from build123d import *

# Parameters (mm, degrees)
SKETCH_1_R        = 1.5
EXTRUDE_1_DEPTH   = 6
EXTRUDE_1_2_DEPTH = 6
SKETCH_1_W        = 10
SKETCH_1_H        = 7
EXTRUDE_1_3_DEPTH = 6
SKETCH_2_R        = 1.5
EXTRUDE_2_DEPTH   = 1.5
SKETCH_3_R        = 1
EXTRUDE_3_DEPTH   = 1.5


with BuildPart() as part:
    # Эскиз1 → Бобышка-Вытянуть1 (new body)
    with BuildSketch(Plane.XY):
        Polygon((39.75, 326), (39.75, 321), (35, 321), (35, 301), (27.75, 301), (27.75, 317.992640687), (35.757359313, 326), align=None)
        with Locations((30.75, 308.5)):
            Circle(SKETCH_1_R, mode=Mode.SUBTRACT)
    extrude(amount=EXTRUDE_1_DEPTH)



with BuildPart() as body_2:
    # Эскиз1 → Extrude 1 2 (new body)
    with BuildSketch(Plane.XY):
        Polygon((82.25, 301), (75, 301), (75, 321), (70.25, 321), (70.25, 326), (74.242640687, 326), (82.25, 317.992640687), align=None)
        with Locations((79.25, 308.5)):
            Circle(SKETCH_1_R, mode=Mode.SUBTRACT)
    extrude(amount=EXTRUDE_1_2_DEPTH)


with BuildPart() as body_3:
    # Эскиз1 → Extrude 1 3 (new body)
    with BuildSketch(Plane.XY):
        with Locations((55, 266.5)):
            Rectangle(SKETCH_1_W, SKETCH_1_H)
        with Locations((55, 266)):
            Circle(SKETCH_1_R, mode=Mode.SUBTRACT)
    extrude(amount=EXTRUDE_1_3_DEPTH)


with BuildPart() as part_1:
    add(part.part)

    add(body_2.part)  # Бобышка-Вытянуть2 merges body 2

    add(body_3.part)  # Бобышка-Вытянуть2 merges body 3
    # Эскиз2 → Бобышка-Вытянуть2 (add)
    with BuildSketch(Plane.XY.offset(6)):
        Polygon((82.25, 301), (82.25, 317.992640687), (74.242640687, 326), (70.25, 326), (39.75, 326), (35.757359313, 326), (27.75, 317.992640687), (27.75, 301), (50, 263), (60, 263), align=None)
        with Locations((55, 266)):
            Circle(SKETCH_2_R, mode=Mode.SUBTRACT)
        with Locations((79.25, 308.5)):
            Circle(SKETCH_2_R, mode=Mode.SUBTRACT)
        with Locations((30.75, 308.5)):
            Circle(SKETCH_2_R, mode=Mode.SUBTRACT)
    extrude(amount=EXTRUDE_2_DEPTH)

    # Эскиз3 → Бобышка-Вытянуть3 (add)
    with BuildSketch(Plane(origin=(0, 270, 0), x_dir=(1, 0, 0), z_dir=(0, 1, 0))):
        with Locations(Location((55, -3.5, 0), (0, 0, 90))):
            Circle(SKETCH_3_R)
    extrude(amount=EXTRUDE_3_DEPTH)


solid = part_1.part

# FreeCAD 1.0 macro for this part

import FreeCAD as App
import Part
import Sketcher

V = App.Vector
Q = App.Units.Quantity

doc = App.newDocument("Part")
body = doc.addObject("PartDesign::Body", "Body")

# Sketch on XY plane
sketch1 = body.newObject("Sketcher::SketchObject", "Sketch")
sketch1.AttachmentSupport = (doc.getObject("XY_Plane"), [""])
sketch1.MapMode = "FlatFace"
sketch1.addGeometry(Part.LineSegment(V(39.8, 321, 0), V(39.8, 326, 0)), False)
sketch1.addGeometry(Part.LineSegment(V(39.8, 326, 0), V(35.8, 326, 0)), False)
sketch1.addGeometry(Part.LineSegment(V(35.8, 326, 0), V(27.8, 318, 0)), False)
sketch1.addGeometry(Part.LineSegment(V(27.8, 318, 0), V(27.8, 301, 0)), False)
sketch1.addGeometry(Part.LineSegment(V(27.8, 301, 0), V(35, 301, 0)), False)
sketch1.addGeometry(Part.LineSegment(V(35, 301, 0), V(35, 321, 0)), False)
sketch1.addGeometry(Part.LineSegment(V(35, 321, 0), V(39.8, 321, 0)), False)
sketch1.addGeometry(Part.Circle(V(30.8, 308.5, 0), V(0, 0, 1), 1.5), False)
sketch1.addConstraint(Sketcher.Constraint("Coincident", 0, 2, 1, 1))
sketch1.addConstraint(Sketcher.Constraint("Coincident", 1, 2, 2, 1))
sketch1.addConstraint(Sketcher.Constraint("Coincident", 2, 2, 3, 1))
sketch1.addConstraint(Sketcher.Constraint("Coincident", 3, 2, 4, 1))
sketch1.addConstraint(Sketcher.Constraint("Coincident", 4, 2, 5, 1))
sketch1.addConstraint(Sketcher.Constraint("Coincident", 5, 2, 6, 1))
sketch1.addConstraint(Sketcher.Constraint("Coincident", 6, 2, 0, 1))
sketch1.addConstraint(Sketcher.Constraint("Vertical", 0))
sketch1.addConstraint(Sketcher.Constraint("Horizontal", 1))
sketch1.addConstraint(Sketcher.Constraint("Vertical", 3))
sketch1.addConstraint(Sketcher.Constraint("Horizontal", 4))
sketch1.addConstraint(Sketcher.Constraint("Vertical", 5))
sketch1.addConstraint(Sketcher.Constraint("Horizontal", 6))
sketch1.addConstraint(Sketcher.Constraint("Diameter", 7, 3.0))
sketch1.addConstraint(Sketcher.Constraint("DistanceY", 0, 1, 0, 2, 5.0))
sketch1.addConstraint(Sketcher.Constraint("DistanceY", 5, 1, 5, 2, 20.0))
sketch1.addConstraint(Sketcher.Constraint("Angle", 2, Q("-135 deg")))
sketch1.addConstraint(Sketcher.Constraint("DistanceY", -1, 1, 0, 2, 326.0))
sketch1.addConstraint(Sketcher.Constraint("DistanceX", -1, 1, 4, 2, 35.0))
sketch1.addConstraint(Sketcher.Constraint("DistanceX", 7, 3, 0, 2, 9.0))
sketch1.addConstraint(Sketcher.Constraint("DistanceX", 2, 2, 7, 3, 3.0))
sketch1.addConstraint(Sketcher.Constraint("DistanceX", 4, 1, 4, 2, 7.25))
sketch1.addConstraint(Sketcher.Constraint("DistanceY", -1, 1, 7, 3, 308.5))
sketch1.addConstraint(Sketcher.Constraint("DistanceX", 1, 2, 1, 1, 3.992641))
pad1 = body.newObject("PartDesign::Pad", "Pad")
pad1.Profile = sketch1
pad1.Length = 6
body2 = doc.addObject("PartDesign::Body", "Body001")

# Sketch on XY plane
sketch2 = body2.newObject("Sketcher::SketchObject", "Sketch001")
sketch2.AttachmentSupport = (doc.getObject("XY_Plane001"), [""])
sketch2.MapMode = "FlatFace"
sketch2.addGeometry(Part.LineSegment(V(75, 301, 0), V(82.2, 301, 0)), False)
sketch2.addGeometry(Part.LineSegment(V(82.2, 301, 0), V(82.2, 318, 0)), False)
sketch2.addGeometry(Part.LineSegment(V(82.2, 318, 0), V(74.2, 326, 0)), False)
sketch2.addGeometry(Part.LineSegment(V(74.2, 326, 0), V(70.2, 326, 0)), False)
sketch2.addGeometry(Part.LineSegment(V(70.2, 326, 0), V(70.2, 321, 0)), False)
sketch2.addGeometry(Part.LineSegment(V(70.2, 321, 0), V(75, 321, 0)), False)
sketch2.addGeometry(Part.LineSegment(V(75, 321, 0), V(75, 301, 0)), False)
sketch2.addGeometry(Part.Circle(V(79.2, 308.5, 0), V(0, 0, 1), 1.5), False)
sketch2.addConstraint(Sketcher.Constraint("Coincident", 0, 2, 1, 1))
sketch2.addConstraint(Sketcher.Constraint("Coincident", 1, 2, 2, 1))
sketch2.addConstraint(Sketcher.Constraint("Coincident", 2, 2, 3, 1))
sketch2.addConstraint(Sketcher.Constraint("Coincident", 3, 2, 4, 1))
sketch2.addConstraint(Sketcher.Constraint("Coincident", 4, 2, 5, 1))
sketch2.addConstraint(Sketcher.Constraint("Coincident", 5, 2, 6, 1))
sketch2.addConstraint(Sketcher.Constraint("Coincident", 6, 2, 0, 1))
sketch2.addConstraint(Sketcher.Constraint("Horizontal", 0))
sketch2.addConstraint(Sketcher.Constraint("Vertical", 1))
sketch2.addConstraint(Sketcher.Constraint("Horizontal", 3))
sketch2.addConstraint(Sketcher.Constraint("Vertical", 4))
sketch2.addConstraint(Sketcher.Constraint("Horizontal", 5))
sketch2.addConstraint(Sketcher.Constraint("Vertical", 6))
sketch2.addConstraint(Sketcher.Constraint("Diameter", 7, 3.0))
sketch2.addConstraint(Sketcher.Constraint("DistanceY", 4, 2, 4, 1, 5.0))
sketch2.addConstraint(Sketcher.Constraint("DistanceY", 6, 2, 6, 1, 20.0))
sketch2.addConstraint(Sketcher.Constraint("Angle", 2, Q("135 deg")))
sketch2.addConstraint(Sketcher.Constraint("DistanceY", -1, 1, 0, 2, 301.0))
sketch2.addConstraint(Sketcher.Constraint("DistanceX", -1, 1, 5, 2, 75.0))
sketch2.addConstraint(Sketcher.Constraint("DistanceX", 7, 3, 0, 2, 3.0))
sketch2.addConstraint(Sketcher.Constraint("DistanceX", 3, 2, 1, 2, 12.0))
sketch2.addConstraint(Sketcher.Constraint("DistanceX", 0, 1, 0, 2, 7.25))
sketch2.addConstraint(Sketcher.Constraint("DistanceY", -1, 1, 7, 3, 308.5))
sketch2.addConstraint(Sketcher.Constraint("DistanceX", 3, 2, 3, 1, 3.992641))
pad2 = body2.newObject("PartDesign::Pad", "Pad001")
pad2.Profile = sketch2
pad2.Length = 6
body3 = doc.addObject("PartDesign::Body", "Body002")

# Sketch on XY plane
sketch3 = body3.newObject("Sketcher::SketchObject", "Sketch002")
sketch3.AttachmentSupport = (doc.getObject("XY_Plane002"), [""])
sketch3.MapMode = "FlatFace"
sketch3.addGeometry(Part.LineSegment(V(50, 270, 0), V(50, 263, 0)), False)
sketch3.addGeometry(Part.LineSegment(V(50, 263, 0), V(60, 263, 0)), False)
sketch3.addGeometry(Part.LineSegment(V(60, 263, 0), V(60, 270, 0)), False)
sketch3.addGeometry(Part.LineSegment(V(60, 270, 0), V(50, 270, 0)), False)
sketch3.addGeometry(Part.Circle(V(55, 266, 0), V(0, 0, 1), 1.5), False)
sketch3.addConstraint(Sketcher.Constraint("Coincident", 0, 2, 1, 1))
sketch3.addConstraint(Sketcher.Constraint("Coincident", 1, 2, 2, 1))
sketch3.addConstraint(Sketcher.Constraint("Coincident", 2, 2, 3, 1))
sketch3.addConstraint(Sketcher.Constraint("Coincident", 3, 2, 0, 1))
sketch3.addConstraint(Sketcher.Constraint("Vertical", 0))
sketch3.addConstraint(Sketcher.Constraint("Horizontal", 1))
sketch3.addConstraint(Sketcher.Constraint("Vertical", 2))
sketch3.addConstraint(Sketcher.Constraint("Horizontal", 3))
sketch3.addConstraint(Sketcher.Constraint("Diameter", 4, 3.0))
sketch3.addConstraint(Sketcher.Constraint("DistanceX", 1, 1, 1, 2, 10.0))
sketch3.addConstraint(Sketcher.Constraint("DistanceY", 0, 2, 0, 1, 7.0))
sketch3.addConstraint(Sketcher.Constraint("DistanceX", -1, 1, 4, 3, 55.0))
sketch3.addConstraint(Sketcher.Constraint("DistanceY", -1, 1, 4, 3, 266.0))
sketch3.addConstraint(Sketcher.Constraint("DistanceX", -1, 1, 0, 2, 50.0))
sketch3.addConstraint(Sketcher.Constraint("DistanceY", -1, 1, 0, 2, 263.0))
pad3 = body3.newObject("PartDesign::Pad", "Pad002")
pad3.Profile = sketch3
pad3.Length = 6
body.AllowCompound = True
doc.recompute()

boolean = body.newObject("PartDesign::Boolean", "Boolean")
boolean.Type = "Fuse"
boolean.addObjects([body2])
doc.recompute()

boolean2 = body.newObject("PartDesign::Boolean", "Boolean001")
boolean2.Type = "Fuse"
boolean2.addObjects([body3])

# Sketch on XY plane
sketch4 = body.newObject("Sketcher::SketchObject", "Sketch003")
sketch4.AttachmentSupport = (doc.getObject("XY_Plane"), [""])
sketch4.MapMode = "FlatFace"
sketch4.AttachmentOffset = App.Placement(V(0, 0, 6), App.Rotation())
sketch4.addGeometry(Part.LineSegment(V(82.2, 301, 0), V(82.2, 318, 0)), False)
sketch4.addGeometry(Part.LineSegment(V(82.2, 318, 0), V(74.2, 326, 0)), False)
sketch4.addGeometry(Part.LineSegment(V(74.2, 326, 0), V(35.8, 326, 0)), False)
sketch4.addGeometry(Part.LineSegment(V(35.8, 326, 0), V(27.8, 318, 0)), False)
sketch4.addGeometry(Part.LineSegment(V(27.8, 318, 0), V(27.8, 301, 0)), False)
sketch4.addGeometry(Part.LineSegment(V(27.8, 301, 0), V(50, 263, 0)), False)
sketch4.addGeometry(Part.LineSegment(V(50, 263, 0), V(60, 263, 0)), False)
sketch4.addGeometry(Part.LineSegment(V(60, 263, 0), V(82.2, 301, 0)), False)
sketch4.addGeometry(Part.Circle(V(55, 266, 0), V(0, 0, 1), 1.5), False)
sketch4.addGeometry(Part.Circle(V(30.8, 308.5, 0), V(0, 0, 1), 1.5), False)
sketch4.addGeometry(Part.Circle(V(79.2, 308.5, 0), V(0, 0, 1), 1.5), False)
sketch4.addConstraint(Sketcher.Constraint("Coincident", 0, 2, 1, 1))
sketch4.addConstraint(Sketcher.Constraint("Coincident", 1, 2, 2, 1))
sketch4.addConstraint(Sketcher.Constraint("Coincident", 2, 2, 3, 1))
sketch4.addConstraint(Sketcher.Constraint("Coincident", 3, 2, 4, 1))
sketch4.addConstraint(Sketcher.Constraint("Coincident", 4, 2, 5, 1))
sketch4.addConstraint(Sketcher.Constraint("Coincident", 5, 2, 6, 1))
sketch4.addConstraint(Sketcher.Constraint("Coincident", 6, 2, 7, 1))
sketch4.addConstraint(Sketcher.Constraint("Coincident", 7, 2, 0, 1))
sketch4.addConstraint(Sketcher.Constraint("Vertical", 0))
sketch4.addConstraint(Sketcher.Constraint("Horizontal", 2))
sketch4.addConstraint(Sketcher.Constraint("Vertical", 4))
sketch4.addConstraint(Sketcher.Constraint("Horizontal", 6))
sketch4.addConstraint(Sketcher.Constraint("Equal", 8, 9))
sketch4.addConstraint(Sketcher.Constraint("Equal", 9, 10))
sketch4.addConstraint(Sketcher.Constraint("Perpendicular", 1, 3))
sketch4.addConstraint(Sketcher.Constraint("Horizontal", 9, 3, 10, 3))
sketch4.addConstraint(Sketcher.Constraint("Horizontal", 0, 2, 3, 2))
sketch4.addConstraint(Sketcher.Constraint("Horizontal", 4, 2, 7, 2))
sketch4.addConstraint(Sketcher.Constraint("Equal", 1, 3))
sketch4.addConstraint(Sketcher.Constraint("Equal", 5, 7))
sketch4.addConstraint(Sketcher.Constraint("Diameter", 8, 3.0))
sketch4.addConstraint(Sketcher.Constraint("DistanceX", 6, 1, 6, 2, 10.0))
sketch4.addConstraint(Sketcher.Constraint("DistanceX", -1, 1, 8, 3, 55.0))
sketch4.addConstraint(Sketcher.Constraint("DistanceY", -1, 1, 8, 3, 266.0))
sketch4.addConstraint(Sketcher.Constraint("DistanceY", -1, 1, 1, 2, 326.0))
sketch4.addConstraint(Sketcher.Constraint("DistanceY", -1, 1, 4, 2, 301.0))
sketch4.addConstraint(Sketcher.Constraint("DistanceX", -1, 1, 5, 2, 50.0))
sketch4.addConstraint(Sketcher.Constraint("DistanceY", -1, 1, 5, 2, 263.0))
sketch4.addConstraint(Sketcher.Constraint("DistanceX", 10, 3, 0, 2, 3.0))
sketch4.addConstraint(Sketcher.Constraint("DistanceX", 3, 2, 9, 3, 3.0))
sketch4.addConstraint(Sketcher.Constraint("DistanceY", -1, 1, 9, 3, 308.5))
sketch4.addConstraint(Sketcher.Constraint("DistanceX", 9, 3, 10, 3, 48.5))
sketch4.addConstraint(Sketcher.Constraint("DistanceX", 2, 2, 2, 1, 38.485281))
pad4 = body.newObject("PartDesign::Pad", "Pad003")
pad4.Profile = sketch4
pad4.Length = 1.5

# Sketch on XZ plane
sketch5 = body.newObject("Sketcher::SketchObject", "Sketch004")
sketch5.AttachmentSupport = (doc.getObject("XZ_Plane"), [""])
sketch5.MapMode = "FlatFace"
sketch5.AttachmentOffset = App.Placement(V(0, 0, -270), App.Rotation())
sketch5.addGeometry(Part.Circle(V(55, 3.5, 0), V(0, 0, 1), 1), False)
sketch5.addConstraint(Sketcher.Constraint("Diameter", 0, 2.0))
sketch5.addConstraint(Sketcher.Constraint("DistanceX", -1, 1, 0, 3, 55.0))
sketch5.addConstraint(Sketcher.Constraint("DistanceY", -1, 1, 0, 3, 3.5))
pad5 = body.newObject("PartDesign::Pad", "Pad004")
pad5.Profile = sketch5
pad5.Length = 1.5
pad5.Reversed = True

doc.recompute()
